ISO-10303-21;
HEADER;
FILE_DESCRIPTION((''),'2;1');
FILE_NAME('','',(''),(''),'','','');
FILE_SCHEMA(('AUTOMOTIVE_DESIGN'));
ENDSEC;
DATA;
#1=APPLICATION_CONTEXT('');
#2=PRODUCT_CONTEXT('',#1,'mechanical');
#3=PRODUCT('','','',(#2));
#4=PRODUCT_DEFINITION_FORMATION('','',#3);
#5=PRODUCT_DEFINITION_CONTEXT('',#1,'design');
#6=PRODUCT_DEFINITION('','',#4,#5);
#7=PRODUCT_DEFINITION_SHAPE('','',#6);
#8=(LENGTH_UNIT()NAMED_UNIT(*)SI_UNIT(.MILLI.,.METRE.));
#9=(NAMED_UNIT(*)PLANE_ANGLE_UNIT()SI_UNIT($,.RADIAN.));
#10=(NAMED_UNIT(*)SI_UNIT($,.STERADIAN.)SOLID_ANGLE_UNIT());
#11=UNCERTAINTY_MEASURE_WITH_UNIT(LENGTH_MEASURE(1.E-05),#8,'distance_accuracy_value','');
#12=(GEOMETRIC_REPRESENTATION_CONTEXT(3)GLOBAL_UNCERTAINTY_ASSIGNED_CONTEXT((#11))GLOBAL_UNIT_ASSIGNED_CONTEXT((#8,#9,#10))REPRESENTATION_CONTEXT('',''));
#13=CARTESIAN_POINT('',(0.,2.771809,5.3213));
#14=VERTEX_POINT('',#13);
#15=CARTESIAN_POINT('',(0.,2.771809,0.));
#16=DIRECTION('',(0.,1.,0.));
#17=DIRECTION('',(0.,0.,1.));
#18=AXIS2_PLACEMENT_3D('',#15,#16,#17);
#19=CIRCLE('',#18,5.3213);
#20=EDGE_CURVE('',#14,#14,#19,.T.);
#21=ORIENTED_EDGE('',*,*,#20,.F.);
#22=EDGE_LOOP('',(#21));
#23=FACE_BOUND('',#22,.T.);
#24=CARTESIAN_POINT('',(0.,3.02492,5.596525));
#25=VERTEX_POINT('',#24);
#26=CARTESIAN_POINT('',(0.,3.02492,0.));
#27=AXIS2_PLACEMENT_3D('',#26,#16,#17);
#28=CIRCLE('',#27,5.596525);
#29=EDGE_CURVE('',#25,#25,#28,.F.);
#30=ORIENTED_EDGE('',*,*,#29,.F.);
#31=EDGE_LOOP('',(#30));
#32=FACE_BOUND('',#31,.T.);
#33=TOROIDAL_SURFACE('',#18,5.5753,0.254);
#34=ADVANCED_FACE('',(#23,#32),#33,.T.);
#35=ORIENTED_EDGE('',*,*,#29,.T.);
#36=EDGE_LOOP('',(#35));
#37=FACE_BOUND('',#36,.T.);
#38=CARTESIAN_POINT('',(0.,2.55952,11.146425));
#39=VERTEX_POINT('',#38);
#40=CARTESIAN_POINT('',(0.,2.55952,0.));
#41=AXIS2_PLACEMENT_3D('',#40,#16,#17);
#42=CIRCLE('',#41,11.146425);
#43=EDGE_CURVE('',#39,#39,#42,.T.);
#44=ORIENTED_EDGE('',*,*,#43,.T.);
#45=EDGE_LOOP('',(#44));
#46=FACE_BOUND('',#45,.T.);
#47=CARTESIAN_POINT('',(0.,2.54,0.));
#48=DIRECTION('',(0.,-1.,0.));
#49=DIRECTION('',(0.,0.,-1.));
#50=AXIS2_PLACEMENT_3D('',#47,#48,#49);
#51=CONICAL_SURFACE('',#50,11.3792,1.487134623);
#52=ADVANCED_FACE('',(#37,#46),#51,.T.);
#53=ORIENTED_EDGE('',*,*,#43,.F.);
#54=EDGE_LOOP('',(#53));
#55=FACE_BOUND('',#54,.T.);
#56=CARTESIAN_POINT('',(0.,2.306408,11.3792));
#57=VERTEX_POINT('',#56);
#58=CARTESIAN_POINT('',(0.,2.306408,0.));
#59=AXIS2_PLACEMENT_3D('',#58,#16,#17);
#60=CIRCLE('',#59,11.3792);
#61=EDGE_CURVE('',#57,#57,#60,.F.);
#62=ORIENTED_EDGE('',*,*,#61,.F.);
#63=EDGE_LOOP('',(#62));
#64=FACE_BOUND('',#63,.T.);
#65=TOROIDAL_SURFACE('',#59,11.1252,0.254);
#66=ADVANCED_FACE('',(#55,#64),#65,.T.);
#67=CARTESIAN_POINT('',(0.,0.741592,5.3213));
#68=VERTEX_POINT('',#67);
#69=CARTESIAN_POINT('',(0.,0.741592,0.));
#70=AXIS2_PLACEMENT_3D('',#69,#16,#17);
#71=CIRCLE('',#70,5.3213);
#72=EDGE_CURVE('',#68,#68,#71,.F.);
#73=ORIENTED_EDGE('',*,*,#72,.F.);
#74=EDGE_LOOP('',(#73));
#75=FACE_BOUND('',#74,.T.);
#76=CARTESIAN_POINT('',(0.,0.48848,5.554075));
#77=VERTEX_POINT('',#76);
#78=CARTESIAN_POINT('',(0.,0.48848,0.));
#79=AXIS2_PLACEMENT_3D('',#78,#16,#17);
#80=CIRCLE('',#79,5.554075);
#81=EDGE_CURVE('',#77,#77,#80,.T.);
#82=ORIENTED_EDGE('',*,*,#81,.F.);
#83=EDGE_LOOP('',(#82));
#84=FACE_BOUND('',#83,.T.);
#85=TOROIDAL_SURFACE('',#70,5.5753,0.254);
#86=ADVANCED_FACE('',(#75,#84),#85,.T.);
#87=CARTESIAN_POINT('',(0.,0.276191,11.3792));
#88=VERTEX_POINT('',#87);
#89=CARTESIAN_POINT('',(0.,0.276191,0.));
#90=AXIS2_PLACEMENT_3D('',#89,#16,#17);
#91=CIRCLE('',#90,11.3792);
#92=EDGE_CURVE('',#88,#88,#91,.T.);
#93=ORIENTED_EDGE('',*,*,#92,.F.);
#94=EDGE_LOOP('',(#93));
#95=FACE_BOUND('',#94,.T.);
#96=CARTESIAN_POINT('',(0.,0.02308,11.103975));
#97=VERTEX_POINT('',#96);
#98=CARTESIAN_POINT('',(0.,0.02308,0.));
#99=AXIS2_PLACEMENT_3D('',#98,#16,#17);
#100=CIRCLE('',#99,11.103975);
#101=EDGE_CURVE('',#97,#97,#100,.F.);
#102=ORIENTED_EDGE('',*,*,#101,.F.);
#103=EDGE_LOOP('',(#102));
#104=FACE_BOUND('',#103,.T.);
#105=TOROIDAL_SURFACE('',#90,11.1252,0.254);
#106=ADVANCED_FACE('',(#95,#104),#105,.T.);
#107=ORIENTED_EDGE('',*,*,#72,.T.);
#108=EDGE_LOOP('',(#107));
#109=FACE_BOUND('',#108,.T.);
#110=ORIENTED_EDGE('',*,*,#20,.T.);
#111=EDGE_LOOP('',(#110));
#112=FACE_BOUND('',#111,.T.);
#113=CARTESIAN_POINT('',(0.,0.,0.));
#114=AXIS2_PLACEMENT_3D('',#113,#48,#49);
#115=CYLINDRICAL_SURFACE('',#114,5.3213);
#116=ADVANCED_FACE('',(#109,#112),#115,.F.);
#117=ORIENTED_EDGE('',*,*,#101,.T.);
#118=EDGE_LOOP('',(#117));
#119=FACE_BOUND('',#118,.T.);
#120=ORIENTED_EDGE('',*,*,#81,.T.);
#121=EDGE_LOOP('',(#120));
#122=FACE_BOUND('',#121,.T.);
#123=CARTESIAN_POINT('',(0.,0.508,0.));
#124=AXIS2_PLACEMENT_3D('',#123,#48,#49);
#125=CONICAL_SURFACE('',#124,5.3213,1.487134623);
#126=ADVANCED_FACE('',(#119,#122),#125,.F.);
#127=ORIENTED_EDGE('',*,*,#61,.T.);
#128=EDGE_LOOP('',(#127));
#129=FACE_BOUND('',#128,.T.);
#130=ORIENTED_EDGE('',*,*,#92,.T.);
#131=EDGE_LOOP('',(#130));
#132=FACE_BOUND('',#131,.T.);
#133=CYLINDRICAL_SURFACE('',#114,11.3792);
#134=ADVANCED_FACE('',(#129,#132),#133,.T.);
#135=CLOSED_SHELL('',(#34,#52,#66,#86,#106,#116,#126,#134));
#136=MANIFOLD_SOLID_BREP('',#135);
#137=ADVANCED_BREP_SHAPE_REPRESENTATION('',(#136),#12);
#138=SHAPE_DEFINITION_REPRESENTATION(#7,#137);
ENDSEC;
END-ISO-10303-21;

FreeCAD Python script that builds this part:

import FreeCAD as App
import Part
import Sketcher
Q = App.Units.Quantity


def edges_at(feature, points):
    """Names of the edges that pass closest to the given points."""
    edges = feature.Shape.Edges
    near = lambda p: min(range(len(edges)), key=lambda i: edges[i].distToShape(Part.Vertex(*p))[0])
    return sorted({f"Edge{near(p) + 1}" for p in points})


def add_polygon(sketch, points):
    """Adds a closed chain of lines whose ends are joined by coincident constraints."""
    first, n = sketch.GeometryCount, len(points)
    for a, b in zip(points, points[1:] + points[:1]):
        sketch.addGeometry(Part.LineSegment(App.Vector(*a, 0), App.Vector(*b, 0)), False)
    for i in range(n):
        sketch.addConstraint(Sketcher.Constraint("Coincident", first + i, 2, first + (i + 1) % n, 1))

doc = App.newDocument("Part")
body = doc.addObject("PartDesign::Body", "Body")

# Sketch on YZ plane
sketch1 = doc.addObject("Sketcher::SketchObject", "Sketch")
body.addObject(sketch1)
sketch1.AttachmentSupport = (doc.YZ_Plane, [""])
sketch1.MapMode = "FlatFace"
add_polygon(sketch1, [(3.048, -5.3213), (0.508, -5.3213), (0, -11.3792), (2.54, -11.3792)])  # lines 0-3
sketch1.addConstraint(Sketcher.Constraint("Horizontal", 0))
sketch1.addConstraint(Sketcher.Constraint("Horizontal", 2))
sketch1.addConstraint(Sketcher.Constraint("PointOnObject", 1, 2, -2))
sketch1.addConstraint(Sketcher.Constraint("Parallel", 1, 3))
sketch1.addConstraint(Sketcher.Constraint("DistanceX", 0, 2, 0, 1, Q("0.1 in")))
sketch1.addConstraint(Sketcher.Constraint("DistanceX", -1, 1, 0, 2, Q("0.02 in")))
sketch1.addConstraint(Sketcher.Constraint("DistanceY", 1, 2, -1, 1, Q("0.448 in")))
sketch1.addConstraint(Sketcher.Constraint("DistanceY", 0, 2, -1, 1, Q("0.2095 in")))
revolution = doc.addObject("PartDesign::Revolution", "Revolution")
body.addObject(revolution)
revolution.Profile = sketch1
revolution.ReferenceAxis = (sketch1, ["H_Axis"])
revolution.Angle = 360
doc.recompute()

fillet = doc.addObject("PartDesign::Fillet", "Fillet")
body.addObject(fillet)
fillet.Base = (revolution, edges_at(revolution, [
    (0, 2.54, 11.379),
    (0, 0, 11.379),
    (0, 0.508, 5.321),
    (0, 3.048, 5.321),
]))
fillet.Radius = Q("0.01 in")

doc.recompute()
